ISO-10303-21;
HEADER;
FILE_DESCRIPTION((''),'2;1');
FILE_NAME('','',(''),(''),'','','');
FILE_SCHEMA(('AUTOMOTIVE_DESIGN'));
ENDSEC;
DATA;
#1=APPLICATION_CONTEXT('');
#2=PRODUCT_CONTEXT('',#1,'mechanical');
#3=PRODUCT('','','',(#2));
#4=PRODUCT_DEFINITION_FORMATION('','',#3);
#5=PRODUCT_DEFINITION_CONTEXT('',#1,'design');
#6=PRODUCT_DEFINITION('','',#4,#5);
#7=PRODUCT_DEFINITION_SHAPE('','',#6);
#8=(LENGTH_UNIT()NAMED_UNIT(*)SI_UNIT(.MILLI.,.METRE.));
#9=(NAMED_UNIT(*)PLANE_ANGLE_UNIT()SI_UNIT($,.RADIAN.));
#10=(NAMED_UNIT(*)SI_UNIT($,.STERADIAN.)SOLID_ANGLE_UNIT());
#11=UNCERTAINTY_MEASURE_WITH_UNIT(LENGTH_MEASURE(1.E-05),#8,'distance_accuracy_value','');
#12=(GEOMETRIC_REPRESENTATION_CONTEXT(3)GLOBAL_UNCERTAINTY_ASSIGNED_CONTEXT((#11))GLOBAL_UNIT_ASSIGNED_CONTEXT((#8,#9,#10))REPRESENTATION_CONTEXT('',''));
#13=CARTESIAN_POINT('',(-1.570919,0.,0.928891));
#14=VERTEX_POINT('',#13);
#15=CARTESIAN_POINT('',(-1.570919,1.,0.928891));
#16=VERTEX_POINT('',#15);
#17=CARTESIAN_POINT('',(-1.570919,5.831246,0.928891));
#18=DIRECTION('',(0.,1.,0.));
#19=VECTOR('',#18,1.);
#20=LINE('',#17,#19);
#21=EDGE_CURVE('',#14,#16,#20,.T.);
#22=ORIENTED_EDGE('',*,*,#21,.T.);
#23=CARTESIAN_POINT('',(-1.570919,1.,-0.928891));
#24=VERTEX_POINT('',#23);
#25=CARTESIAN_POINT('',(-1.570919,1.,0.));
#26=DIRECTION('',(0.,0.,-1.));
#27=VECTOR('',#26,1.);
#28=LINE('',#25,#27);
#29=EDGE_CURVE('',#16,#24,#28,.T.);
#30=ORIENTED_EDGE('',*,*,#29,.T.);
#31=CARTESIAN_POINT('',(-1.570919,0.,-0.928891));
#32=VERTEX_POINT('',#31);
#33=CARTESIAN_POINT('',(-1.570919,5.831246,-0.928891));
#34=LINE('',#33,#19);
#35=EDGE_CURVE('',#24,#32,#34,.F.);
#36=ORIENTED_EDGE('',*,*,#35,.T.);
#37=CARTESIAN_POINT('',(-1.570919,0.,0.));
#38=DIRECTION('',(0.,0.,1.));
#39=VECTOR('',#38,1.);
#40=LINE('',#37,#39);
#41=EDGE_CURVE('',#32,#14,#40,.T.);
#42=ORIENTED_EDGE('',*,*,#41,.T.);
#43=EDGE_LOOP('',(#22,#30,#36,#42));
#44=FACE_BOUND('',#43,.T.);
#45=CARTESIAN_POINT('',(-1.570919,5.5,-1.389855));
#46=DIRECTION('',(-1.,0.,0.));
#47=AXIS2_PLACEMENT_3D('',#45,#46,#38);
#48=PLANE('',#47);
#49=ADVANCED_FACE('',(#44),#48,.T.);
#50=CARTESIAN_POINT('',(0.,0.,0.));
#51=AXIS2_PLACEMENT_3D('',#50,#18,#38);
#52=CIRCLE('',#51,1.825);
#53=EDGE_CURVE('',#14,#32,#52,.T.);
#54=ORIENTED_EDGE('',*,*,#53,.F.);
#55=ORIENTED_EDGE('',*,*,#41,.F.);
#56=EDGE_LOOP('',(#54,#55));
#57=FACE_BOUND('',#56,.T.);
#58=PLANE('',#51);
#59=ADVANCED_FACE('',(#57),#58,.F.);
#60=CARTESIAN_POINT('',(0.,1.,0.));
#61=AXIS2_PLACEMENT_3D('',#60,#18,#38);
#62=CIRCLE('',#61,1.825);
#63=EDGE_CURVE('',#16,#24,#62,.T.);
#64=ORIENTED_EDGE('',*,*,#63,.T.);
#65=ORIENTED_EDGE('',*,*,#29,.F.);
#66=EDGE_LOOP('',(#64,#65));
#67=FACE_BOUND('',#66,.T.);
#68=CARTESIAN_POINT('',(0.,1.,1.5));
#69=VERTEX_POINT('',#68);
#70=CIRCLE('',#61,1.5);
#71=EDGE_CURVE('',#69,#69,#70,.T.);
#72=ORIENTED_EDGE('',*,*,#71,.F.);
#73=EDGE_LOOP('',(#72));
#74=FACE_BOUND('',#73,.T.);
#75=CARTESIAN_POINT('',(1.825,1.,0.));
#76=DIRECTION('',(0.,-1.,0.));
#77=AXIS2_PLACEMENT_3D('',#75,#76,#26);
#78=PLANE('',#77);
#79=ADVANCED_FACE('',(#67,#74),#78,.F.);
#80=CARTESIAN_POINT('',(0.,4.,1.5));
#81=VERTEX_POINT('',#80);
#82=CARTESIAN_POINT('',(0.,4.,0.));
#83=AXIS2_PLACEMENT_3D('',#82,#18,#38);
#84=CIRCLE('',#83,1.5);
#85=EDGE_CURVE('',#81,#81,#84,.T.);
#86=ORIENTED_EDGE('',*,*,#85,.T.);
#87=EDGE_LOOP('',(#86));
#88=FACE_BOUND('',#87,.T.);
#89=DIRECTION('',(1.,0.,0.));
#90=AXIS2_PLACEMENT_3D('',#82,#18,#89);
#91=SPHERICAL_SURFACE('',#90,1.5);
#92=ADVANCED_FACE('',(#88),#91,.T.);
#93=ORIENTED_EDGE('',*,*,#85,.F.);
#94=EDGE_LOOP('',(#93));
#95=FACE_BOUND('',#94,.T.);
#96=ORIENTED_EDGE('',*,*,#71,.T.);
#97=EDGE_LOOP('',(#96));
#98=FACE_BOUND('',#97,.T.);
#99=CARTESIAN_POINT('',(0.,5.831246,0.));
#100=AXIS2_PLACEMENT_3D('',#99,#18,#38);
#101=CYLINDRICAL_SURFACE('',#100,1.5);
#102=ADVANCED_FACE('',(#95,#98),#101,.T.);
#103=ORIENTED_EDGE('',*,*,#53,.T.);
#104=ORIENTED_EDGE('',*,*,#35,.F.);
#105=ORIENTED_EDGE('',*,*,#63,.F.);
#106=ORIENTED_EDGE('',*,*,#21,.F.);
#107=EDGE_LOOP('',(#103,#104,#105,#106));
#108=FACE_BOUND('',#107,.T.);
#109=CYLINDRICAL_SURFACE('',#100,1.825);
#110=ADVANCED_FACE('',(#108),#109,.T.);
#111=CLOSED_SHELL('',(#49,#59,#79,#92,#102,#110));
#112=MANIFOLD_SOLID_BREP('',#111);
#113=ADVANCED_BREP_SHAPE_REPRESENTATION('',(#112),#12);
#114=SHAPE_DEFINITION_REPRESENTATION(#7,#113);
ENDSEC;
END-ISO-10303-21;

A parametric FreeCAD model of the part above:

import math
import FreeCAD as App
import Part
import Sketcher
from FreeCAD import Vector


def add_polygon(sketch, points):
    """Adds a closed chain of lines whose ends are joined by coincident constraints."""
    first, n = sketch.GeometryCount, len(points)
    for a, b in zip(points, points[1:] + points[:1]):
        sketch.addGeometry(Part.LineSegment(App.Vector(*a, 0), App.Vector(*b, 0)), False)
    for i in range(n):
        sketch.addConstraint(Sketcher.Constraint("Coincident", first + i, 2, first + (i + 1) % n, 1))

doc = App.newDocument("Part")
body = doc.addObject("PartDesign::Body", "Body")

sketch1 = body.newObject("Sketcher::SketchObject", "Sketch")
sketch1.AttachmentSupport = (doc.getObject("XY_Plane"), [""])
sketch1.MapMode = "FlatFace"
sketch1.addGeometry(Part.LineSegment(Vector(0, 0, 0), Vector(1.82, 0, 0)), False)
sketch1.addGeometry(Part.LineSegment(Vector(1.82, 0, 0), Vector(1.82, 1, 0)), False)
sketch1.addGeometry(Part.LineSegment(Vector(1.82, 1, 0), Vector(1.5, 1, 0)), False)
sketch1.addGeometry(Part.LineSegment(Vector(1.5, 1, 0), Vector(1.5, 4, 0)), False)
sketch1.addGeometry(Part.ArcOfCircle(Part.Circle(Vector(0, 4, 0), Vector(0, 0, 1), 1.5), math.radians(0), math.radians(90)), False)
sketch1.addGeometry(Part.LineSegment(Vector(0, 5.5, 0), Vector(0, 0, 0)), False)
sketch1.addConstraint(Sketcher.Constraint("Coincident", 0, 2, 1, 1))
sketch1.addConstraint(Sketcher.Constraint("Coincident", 1, 2, 2, 1))
sketch1.addConstraint(Sketcher.Constraint("Coincident", 2, 2, 3, 1))
sketch1.addConstraint(Sketcher.Constraint("Tangent", 3, 2, 4, 1))
sketch1.addConstraint(Sketcher.Constraint("Coincident", 4, 2, 5, 1))
sketch1.addConstraint(Sketcher.Constraint("Coincident", 5, 2, 0, 1))
sketch1.addConstraint(Sketcher.Constraint("Horizontal", 0))
sketch1.addConstraint(Sketcher.Constraint("Vertical", 1))
sketch1.addConstraint(Sketcher.Constraint("Horizontal", 2))
sketch1.addConstraint(Sketcher.Constraint("Vertical", 3))
sketch1.addConstraint(Sketcher.Constraint("Vertical", 5))
sketch1.addConstraint(Sketcher.Constraint("Coincident", 5, 2, -1, 1))
sketch1.addConstraint(Sketcher.Constraint("PointOnObject", 4, 3, -2))
sketch1.addConstraint(Sketcher.Constraint("Radius", 4, 1.5))
sketch1.addConstraint(Sketcher.Constraint("DistanceY", 1, 1, 1, 2, 1.0))
sketch1.addConstraint(Sketcher.Constraint("DistanceY", 3, 1, 3, 2, 3.0))
sketch1.addConstraint(Sketcher.Constraint("DistanceX", 0, 1, 0, 2, 1.825))
revolution = body.newObject("PartDesign::Revolution", "Revolution")
revolution.Profile = sketch1
revolution.ReferenceAxis = (sketch1, ["V_Axis"])
revolution.Angle = 360

sketch2 = body.newObject("Sketcher::SketchObject", "Sketch001")
sketch2.AttachmentSupport = (doc.getObject("XZ_Plane"), [""])
sketch2.MapMode = "FlatFace"
add_polygon(sketch2, [(-1.6, 1.6), (-1.6, -1.4), (-2.6, 0.3)])
sketch2.addConstraint(Sketcher.Constraint("Vertical", 0))
sketch2.addConstraint(Sketcher.Constraint("DistanceX", 1, 2, -1, 1, 2.626699))
sketch2.addConstraint(Sketcher.Constraint("DistanceY", 1, 2, 2, 2, 1.336301))
sketch2.addConstraint(Sketcher.Constraint("Distance", 2, 1.703048))
sketch2.addConstraint(Sketcher.Constraint("DistanceY", 0, 2, 0, 1, 2.993927))
sketch2.addConstraint(Sketcher.Constraint("DistanceY", -1, 1, 1, 2, 0.26777))
pocket1 = body.newObject("PartDesign::Pocket", "Pocket")
pocket1.Profile = sketch2
pocket1.Type = "ThroughAll"
pocket1.Midplane = True

doc.recompute()
